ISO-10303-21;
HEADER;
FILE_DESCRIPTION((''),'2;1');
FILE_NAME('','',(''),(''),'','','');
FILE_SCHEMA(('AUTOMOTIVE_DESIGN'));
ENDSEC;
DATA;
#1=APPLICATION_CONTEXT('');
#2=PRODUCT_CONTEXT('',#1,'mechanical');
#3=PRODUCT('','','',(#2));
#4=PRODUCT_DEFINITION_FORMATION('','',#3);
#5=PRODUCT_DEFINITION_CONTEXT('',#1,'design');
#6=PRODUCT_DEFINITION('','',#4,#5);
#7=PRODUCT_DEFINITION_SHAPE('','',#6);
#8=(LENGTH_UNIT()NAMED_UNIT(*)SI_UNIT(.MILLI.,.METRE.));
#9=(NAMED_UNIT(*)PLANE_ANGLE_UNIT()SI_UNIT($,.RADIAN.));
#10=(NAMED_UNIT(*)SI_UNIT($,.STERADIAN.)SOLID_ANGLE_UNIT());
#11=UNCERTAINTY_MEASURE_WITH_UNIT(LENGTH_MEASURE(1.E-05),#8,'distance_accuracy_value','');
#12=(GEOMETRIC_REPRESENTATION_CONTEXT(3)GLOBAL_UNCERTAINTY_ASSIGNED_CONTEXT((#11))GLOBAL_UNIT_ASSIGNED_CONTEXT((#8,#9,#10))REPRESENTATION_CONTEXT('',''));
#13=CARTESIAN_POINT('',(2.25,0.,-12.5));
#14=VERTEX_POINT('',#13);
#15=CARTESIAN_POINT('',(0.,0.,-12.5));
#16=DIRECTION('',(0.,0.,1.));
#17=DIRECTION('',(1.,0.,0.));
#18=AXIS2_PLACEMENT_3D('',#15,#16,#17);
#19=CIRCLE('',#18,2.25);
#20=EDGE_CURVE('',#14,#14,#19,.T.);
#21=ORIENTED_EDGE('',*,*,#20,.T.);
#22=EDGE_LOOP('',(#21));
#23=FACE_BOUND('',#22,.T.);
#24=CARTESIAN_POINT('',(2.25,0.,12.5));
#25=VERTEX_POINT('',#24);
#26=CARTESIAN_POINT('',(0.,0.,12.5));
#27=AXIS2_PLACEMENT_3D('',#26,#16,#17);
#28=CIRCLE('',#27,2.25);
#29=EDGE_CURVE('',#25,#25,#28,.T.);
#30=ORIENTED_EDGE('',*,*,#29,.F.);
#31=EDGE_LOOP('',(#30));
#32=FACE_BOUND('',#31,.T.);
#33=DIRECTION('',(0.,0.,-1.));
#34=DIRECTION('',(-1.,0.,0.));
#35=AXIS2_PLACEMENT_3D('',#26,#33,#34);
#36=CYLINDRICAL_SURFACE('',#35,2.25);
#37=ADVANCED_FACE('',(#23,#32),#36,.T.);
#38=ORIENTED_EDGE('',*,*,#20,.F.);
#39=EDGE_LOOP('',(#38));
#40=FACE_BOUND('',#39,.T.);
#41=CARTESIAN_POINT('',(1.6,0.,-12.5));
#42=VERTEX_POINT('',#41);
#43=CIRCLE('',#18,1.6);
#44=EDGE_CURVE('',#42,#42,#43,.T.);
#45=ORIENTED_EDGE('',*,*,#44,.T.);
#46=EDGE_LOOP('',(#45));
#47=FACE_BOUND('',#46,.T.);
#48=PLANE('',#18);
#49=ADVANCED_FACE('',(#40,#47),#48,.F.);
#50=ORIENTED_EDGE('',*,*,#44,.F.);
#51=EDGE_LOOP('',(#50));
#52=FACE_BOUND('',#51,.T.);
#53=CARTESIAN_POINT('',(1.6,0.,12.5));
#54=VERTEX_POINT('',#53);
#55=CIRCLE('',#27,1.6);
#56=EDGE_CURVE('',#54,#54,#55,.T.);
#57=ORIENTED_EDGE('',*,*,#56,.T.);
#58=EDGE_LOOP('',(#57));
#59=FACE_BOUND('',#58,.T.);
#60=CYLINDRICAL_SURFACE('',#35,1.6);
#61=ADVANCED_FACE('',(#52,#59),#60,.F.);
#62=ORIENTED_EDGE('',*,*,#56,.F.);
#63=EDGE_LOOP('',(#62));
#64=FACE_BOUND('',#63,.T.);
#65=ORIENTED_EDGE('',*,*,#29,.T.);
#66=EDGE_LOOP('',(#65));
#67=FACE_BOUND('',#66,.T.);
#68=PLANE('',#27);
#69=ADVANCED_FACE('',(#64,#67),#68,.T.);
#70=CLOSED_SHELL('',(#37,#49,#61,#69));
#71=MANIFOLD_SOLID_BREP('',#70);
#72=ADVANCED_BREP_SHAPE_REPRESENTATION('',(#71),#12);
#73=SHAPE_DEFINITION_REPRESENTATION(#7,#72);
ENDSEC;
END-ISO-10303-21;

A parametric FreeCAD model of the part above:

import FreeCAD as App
import Part
import Sketcher
Q = App.Units.Quantity

doc = App.newDocument("Part")
body = doc.addObject("PartDesign::Body", "Body")

sketch1 = doc.addObject("Sketcher::SketchObject", "Sketch")
body.addObject(sketch1)
sketch1.AttachmentSupport = (doc.XY_Plane, [""])
sketch1.MapMode = "FlatFace"
sketch1.addGeometry([
    Part.Circle(App.Vector(0, 0, 0), App.Vector(0, 0, 1), 2.25),
    Part.Circle(App.Vector(0, 0, 0), App.Vector(0, 0, 1), 1.6),
], False)
sketch1.addConstraint([
    Sketcher.Constraint("Coincident", 0, 3, -1, 1),
    Sketcher.Constraint("Coincident", 1, 3, -1, 1),
    Sketcher.Constraint("Diameter", 0, Q("4.5 mm")),
    Sketcher.Constraint("Diameter", 1, Q("3.2 mm")),
])
pad1 = doc.addObject("PartDesign::Pad", "Pad")
body.addObject(pad1)
pad1.Profile = sketch1
pad1.Length = 25
pad1.Midplane = True

doc.recompute()
